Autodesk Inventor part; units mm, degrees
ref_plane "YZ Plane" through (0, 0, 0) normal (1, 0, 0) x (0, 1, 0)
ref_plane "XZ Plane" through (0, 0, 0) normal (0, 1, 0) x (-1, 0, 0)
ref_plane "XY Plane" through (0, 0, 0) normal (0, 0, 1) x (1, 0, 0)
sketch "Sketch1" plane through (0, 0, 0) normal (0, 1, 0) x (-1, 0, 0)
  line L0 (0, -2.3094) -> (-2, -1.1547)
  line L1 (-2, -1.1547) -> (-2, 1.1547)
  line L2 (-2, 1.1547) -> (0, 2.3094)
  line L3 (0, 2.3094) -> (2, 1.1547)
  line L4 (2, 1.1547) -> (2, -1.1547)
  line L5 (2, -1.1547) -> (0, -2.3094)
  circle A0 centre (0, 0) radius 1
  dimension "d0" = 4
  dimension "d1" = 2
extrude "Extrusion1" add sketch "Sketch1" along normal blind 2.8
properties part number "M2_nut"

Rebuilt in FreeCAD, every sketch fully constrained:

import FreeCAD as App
import Part
import Sketcher
Q = App.Units.Quantity


def add_polygon(sketch, points):
    """Adds a closed chain of lines whose ends are joined by coincident constraints."""
    first, n = sketch.GeometryCount, len(points)
    for a, b in zip(points, points[1:] + points[:1]):
        sketch.addGeometry(Part.LineSegment(App.Vector(*a, 0), App.Vector(*b, 0)), False)
    for i in range(n):
        sketch.addConstraint(Sketcher.Constraint("Coincident", first + i, 2, first + (i + 1) % n, 1))

doc = App.newDocument("Part")
params = doc.addObject("Spreadsheet::Sheet", "Params")
for row, (alias, value) in enumerate([
    ("sketch1_diameter", "2 mm"),
    ("pad1_length", "2.8 mm"),
], start=1):
    params.set(f"A{row}", alias)
    params.set(f"B{row}", "=" + value)
    params.setAlias(f"B{row}", alias)

body = doc.addObject("PartDesign::Body", "Body")

# Sketch on XZ plane
sketch1 = body.newObject("Sketcher::SketchObject", "Sketch")
sketch1.AttachmentSupport = (doc.getObject("XZ_Plane"), [""])
sketch1.MapMode = "FlatFace"
add_polygon(sketch1, [(2, -1.1547), (0, -2.3094), (-2, -1.1547), (-2, 1.1547), (0, 2.3094), (2, 1.1547)])  # lines 0-5
sketch1.addGeometry(Part.Circle(App.Vector(0, 0, 0), App.Vector(0, 0, 1), 1), False)  # 6
sketch1.addConstraint(Sketcher.Constraint("Vertical", 2))
sketch1.addConstraint(Sketcher.Constraint("Vertical", 5))
sketch1.addConstraint(Sketcher.Constraint("Coincident", 6, 3, -1, 1))
sketch1.addConstraint(Sketcher.Constraint("Symmetric", 0, 2, 3, 2, -1, 1))
sketch1.addConstraint(Sketcher.Constraint("Symmetric", 1, 2, 4, 2, -1, 1))
sketch1.addConstraint(Sketcher.Constraint("PointOnObject", 0, 2, -2))
sketch1.addConstraint(Sketcher.Constraint("Parallel", 0, 3))
sketch1.addConstraint(Sketcher.Constraint("Horizontal", 2, 2, 4, 2))
sketch1.addConstraint(Sketcher.Constraint("Diameter", 6, Q("2 mm")))
sketch1.addConstraint(Sketcher.Constraint("DistanceX", 1, 2, -1, 1, Q("2 mm")))
sketch1.addConstraint(Sketcher.Constraint("Angle", 0, Q("-150 deg")))
sketch1.addConstraint(Sketcher.Constraint("DistanceY", 2, 1, 2, 2, Q("2.3094 mm")))
sketch1.setExpression("Constraints[14]", "Params.sketch1_diameter")
pad1 = body.newObject("PartDesign::Pad", "Pad")
pad1.Profile = sketch1
pad1.setExpression("Length", "Params.pad1_length")
pad1.Reversed = True

doc.recompute()
